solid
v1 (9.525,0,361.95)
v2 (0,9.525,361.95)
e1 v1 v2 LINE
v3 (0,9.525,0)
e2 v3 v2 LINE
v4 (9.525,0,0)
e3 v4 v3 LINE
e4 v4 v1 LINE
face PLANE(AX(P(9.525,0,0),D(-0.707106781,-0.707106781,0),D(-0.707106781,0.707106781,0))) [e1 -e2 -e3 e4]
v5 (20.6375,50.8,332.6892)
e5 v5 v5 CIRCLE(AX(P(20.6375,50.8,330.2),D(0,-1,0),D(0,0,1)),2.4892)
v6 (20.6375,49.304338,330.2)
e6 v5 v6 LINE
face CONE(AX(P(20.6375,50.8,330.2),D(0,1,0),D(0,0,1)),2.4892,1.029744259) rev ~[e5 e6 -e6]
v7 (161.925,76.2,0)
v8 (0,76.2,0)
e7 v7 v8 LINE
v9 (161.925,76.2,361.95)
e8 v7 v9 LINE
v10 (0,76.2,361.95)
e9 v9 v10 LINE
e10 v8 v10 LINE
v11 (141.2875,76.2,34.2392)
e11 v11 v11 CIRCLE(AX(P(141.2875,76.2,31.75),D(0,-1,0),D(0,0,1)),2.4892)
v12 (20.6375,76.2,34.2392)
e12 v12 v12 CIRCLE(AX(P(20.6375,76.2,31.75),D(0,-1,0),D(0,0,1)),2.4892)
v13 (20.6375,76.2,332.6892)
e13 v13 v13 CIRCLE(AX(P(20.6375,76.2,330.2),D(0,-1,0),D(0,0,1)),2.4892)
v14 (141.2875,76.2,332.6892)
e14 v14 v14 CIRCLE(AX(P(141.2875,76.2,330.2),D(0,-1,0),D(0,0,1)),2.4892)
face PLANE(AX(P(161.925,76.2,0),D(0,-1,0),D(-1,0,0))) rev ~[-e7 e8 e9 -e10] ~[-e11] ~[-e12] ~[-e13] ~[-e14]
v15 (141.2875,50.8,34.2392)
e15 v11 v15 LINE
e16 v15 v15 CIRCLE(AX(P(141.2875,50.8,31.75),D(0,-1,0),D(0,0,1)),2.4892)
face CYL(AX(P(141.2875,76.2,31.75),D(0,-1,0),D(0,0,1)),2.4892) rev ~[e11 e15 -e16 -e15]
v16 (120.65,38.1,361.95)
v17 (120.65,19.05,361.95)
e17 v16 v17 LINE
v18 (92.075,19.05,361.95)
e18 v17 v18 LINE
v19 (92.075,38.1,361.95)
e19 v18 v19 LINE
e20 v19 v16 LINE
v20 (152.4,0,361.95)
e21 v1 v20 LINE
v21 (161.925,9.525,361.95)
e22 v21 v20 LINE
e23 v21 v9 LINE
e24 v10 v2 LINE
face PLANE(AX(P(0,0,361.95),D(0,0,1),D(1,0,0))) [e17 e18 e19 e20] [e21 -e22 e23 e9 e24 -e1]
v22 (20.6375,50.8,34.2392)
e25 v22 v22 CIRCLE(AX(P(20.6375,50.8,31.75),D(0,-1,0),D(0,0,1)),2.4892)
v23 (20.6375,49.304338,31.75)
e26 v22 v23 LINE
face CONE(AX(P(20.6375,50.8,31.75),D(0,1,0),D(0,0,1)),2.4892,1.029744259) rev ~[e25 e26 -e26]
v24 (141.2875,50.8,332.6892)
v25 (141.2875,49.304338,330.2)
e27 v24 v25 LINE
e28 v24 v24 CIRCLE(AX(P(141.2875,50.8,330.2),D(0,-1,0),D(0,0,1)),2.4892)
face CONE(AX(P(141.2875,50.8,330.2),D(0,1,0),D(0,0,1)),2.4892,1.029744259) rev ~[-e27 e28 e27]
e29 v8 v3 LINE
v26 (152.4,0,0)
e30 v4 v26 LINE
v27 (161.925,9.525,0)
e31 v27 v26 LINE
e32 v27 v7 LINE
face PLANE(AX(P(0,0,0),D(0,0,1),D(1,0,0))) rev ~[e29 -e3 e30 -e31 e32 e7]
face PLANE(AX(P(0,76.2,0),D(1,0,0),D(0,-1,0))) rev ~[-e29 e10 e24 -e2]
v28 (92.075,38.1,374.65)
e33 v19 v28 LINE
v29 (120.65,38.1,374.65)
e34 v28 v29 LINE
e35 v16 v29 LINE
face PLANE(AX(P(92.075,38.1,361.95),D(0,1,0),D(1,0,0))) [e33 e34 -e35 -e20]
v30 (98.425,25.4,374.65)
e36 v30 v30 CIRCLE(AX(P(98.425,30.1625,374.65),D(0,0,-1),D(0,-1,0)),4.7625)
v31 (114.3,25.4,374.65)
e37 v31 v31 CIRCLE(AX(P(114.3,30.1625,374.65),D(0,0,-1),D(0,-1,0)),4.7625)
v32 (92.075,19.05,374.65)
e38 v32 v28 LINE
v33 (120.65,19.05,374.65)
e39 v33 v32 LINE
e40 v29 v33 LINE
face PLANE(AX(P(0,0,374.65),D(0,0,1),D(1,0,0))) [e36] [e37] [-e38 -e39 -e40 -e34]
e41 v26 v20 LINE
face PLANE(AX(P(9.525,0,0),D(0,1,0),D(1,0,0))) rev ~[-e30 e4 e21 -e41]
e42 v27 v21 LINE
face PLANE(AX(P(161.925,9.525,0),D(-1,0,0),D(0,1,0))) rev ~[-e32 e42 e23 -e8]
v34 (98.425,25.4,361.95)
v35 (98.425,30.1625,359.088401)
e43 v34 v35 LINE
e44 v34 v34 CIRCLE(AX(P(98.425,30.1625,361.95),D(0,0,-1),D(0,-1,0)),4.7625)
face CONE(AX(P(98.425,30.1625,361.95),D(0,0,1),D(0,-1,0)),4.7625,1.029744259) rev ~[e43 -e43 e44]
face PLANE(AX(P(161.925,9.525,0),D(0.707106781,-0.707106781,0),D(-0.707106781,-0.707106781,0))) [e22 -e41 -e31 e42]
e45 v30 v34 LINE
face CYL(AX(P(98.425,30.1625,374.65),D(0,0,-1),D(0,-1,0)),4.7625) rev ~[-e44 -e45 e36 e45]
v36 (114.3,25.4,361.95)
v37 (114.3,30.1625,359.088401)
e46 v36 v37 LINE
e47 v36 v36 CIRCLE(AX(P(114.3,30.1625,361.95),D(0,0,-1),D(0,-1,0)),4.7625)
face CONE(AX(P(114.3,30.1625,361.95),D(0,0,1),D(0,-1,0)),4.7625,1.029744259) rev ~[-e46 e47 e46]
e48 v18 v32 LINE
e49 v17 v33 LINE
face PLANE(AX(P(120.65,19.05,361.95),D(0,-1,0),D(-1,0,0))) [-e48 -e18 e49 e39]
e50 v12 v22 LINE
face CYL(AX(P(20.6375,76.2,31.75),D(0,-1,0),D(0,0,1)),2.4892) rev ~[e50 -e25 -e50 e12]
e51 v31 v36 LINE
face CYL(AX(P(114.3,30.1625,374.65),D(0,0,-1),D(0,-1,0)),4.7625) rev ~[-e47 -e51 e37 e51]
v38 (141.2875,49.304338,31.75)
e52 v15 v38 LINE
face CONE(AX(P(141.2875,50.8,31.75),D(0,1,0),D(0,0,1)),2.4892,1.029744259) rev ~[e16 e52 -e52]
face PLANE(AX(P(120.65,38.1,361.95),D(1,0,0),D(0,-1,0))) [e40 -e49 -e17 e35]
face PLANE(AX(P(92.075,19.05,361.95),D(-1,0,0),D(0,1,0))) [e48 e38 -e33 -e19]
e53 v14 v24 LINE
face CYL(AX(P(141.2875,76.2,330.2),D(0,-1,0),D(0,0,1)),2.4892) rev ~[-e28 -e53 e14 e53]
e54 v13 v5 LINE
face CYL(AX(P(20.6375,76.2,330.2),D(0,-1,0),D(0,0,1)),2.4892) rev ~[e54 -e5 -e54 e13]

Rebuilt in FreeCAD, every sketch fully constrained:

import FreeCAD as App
import Part
import Sketcher
from FreeCAD import Vector
Q = App.Units.Quantity


def add_polygon(sketch, points):
    """Adds a closed chain of lines whose ends are joined by coincident constraints."""
    first, n = sketch.GeometryCount, len(points)
    for a, b in zip(points, points[1:] + points[:1]):
        sketch.addGeometry(Part.LineSegment(App.Vector(*a, 0), App.Vector(*b, 0)), False)
    for i in range(n):
        sketch.addConstraint(Sketcher.Constraint("Coincident", first + i, 2, first + (i + 1) % n, 1))

doc = App.newDocument("Part")
body = doc.addObject("PartDesign::Body", "Body")

# Sketch on XY plane
sketch1 = body.newObject("Sketcher::SketchObject", "Sketch")
sketch1.AttachmentSupport = (doc.getObject("XY_Plane"), [""])
sketch1.MapMode = "FlatFace"
add_polygon(sketch1, [(0, 10), (10, 0), (152, 0), (162, 10), (162, 76), (0, 76)])  # lines 0-5
sketch1.addConstraint([
    Sketcher.Constraint("Horizontal", 1),
    Sketcher.Constraint("Vertical", 3),
    Sketcher.Constraint("Horizontal", 4),
    Sketcher.Constraint("Vertical", 5),
    Sketcher.Constraint("PointOnObject", 0, 2, -1),
    Sketcher.Constraint("PointOnObject", 4, 2, -2),
    Sketcher.Constraint("Perpendicular", 0, 2),
    Sketcher.Constraint("Horizontal", 2, 2, 5, 2),
    Sketcher.Constraint("Equal", 0, 2),
    Sketcher.Constraint("DistanceY", -1, 1, 3, 2, Q("3 in")),
    Sketcher.Constraint("DistanceX", 4, 2, 4, 1, Q("6.375 in")),
    Sketcher.Constraint("DistanceX", -1, 1, 0, 2, Q("0.375 in")),
])
pad1 = body.newObject("PartDesign::Pad", "Pad")
pad1.Profile = sketch1
pad1.Length = Q("14.25 in")

# Sketch on XY plane
sketch2 = body.newObject("Sketcher::SketchObject", "Sketch001")
sketch2.AttachmentSupport = (doc.getObject("XY_Plane"), [""])
sketch2.MapMode = "FlatFace"
sketch2.AttachmentOffset = App.Placement(Vector(0, 0, 14.25 * 25.4), App.Rotation())
add_polygon(sketch2, [(121, 38), (92, 38), (92, 19), (121, 19)])  # lines 0-3
sketch2.addConstraint([
    Sketcher.Constraint("Horizontal", 0),
    Sketcher.Constraint("Vertical", 1),
    Sketcher.Constraint("Horizontal", 2),
    Sketcher.Constraint("Vertical", 3),
    Sketcher.Constraint("DistanceY", 1, 2, 1, 1, Q("0.75 in")),
    Sketcher.Constraint("DistanceX", 0, 2, 0, 1, Q("1.125 in")),
    Sketcher.Constraint("DistanceY", -1, 1, 1, 2, Q("0.75 in")),
    Sketcher.Constraint("DistanceX", -1, 1, 2, 2, Q("4.75 in")),
])
pad2 = body.newObject("PartDesign::Pad", "Pad001")
pad2.Profile = sketch2
pad2.Length = Q("0.5 in")

# Sketch on XY plane
sketch3 = body.newObject("Sketcher::SketchObject", "Sketch002")
sketch3.AttachmentSupport = (doc.getObject("XY_Plane"), [""])
sketch3.MapMode = "FlatFace"
sketch3.AttachmentOffset = App.Placement(Vector(0, 0, 14.75 * 25.4), App.Rotation())
sketch3.addGeometry([
    Part.Circle(Vector(98.4, 30.2, 0), Vector(0, 0, 1), 4.8),
    Part.Circle(Vector(114.3, 30.2, 0), Vector(0, 0, 1), 4.8),
], False)
sketch3.addConstraint([
    Sketcher.Constraint("Equal", 0, 1),
    Sketcher.Constraint("Horizontal", 0, 3, 1, 3),
    Sketcher.Constraint("Diameter", 0, Q("0.375 in")),
    Sketcher.Constraint("DistanceX", -1, 1, 1, 3, Q("4.5 in")),
    Sketcher.Constraint("DistanceX", -1, 1, 0, 3, Q("3.875 in")),
    Sketcher.Constraint("DistanceY", -1, 1, 0, 3, Q("1.1875 in")),
])
doc.recompute()
hole = body.newObject("PartDesign::Hole", "Hole")
hole.Profile = sketch3
hole.ThreadType = "None"
hole.Diameter = Q("0.375 in")
hole.DepthType = "Dimension"
hole.Depth = Q("0.5 in")
hole.DrillPoint = "Angled"
hole.DrillPointAngle = 118

# Sketch on XZ plane
sketch4 = body.newObject("Sketcher::SketchObject", "Sketch003")
sketch4.AttachmentSupport = (doc.getObject("XZ_Plane"), [""])
sketch4.MapMode = "FlatFace"
sketch4.AttachmentOffset = App.Placement(Vector(0, 0, -3 * 25.4), App.Rotation())
sketch4.addGeometry([
    Part.Circle(Vector(20.6, 31.8, 0), Vector(0, 0, 1), 2.5),
    Part.Circle(Vector(141.3, 31.8, 0), Vector(0, 0, 1), 2.5),
    Part.Circle(Vector(141.3, 330.2, 0), Vector(0, 0, 1), 2.5),
    Part.Circle(Vector(20.6, 330.2, 0), Vector(0, 0, 1), 2.5),
], False)
sketch4.addConstraint([
    Sketcher.Constraint("Equal", 0, 1),
    Sketcher.Constraint("Equal", 1, 2),
    Sketcher.Constraint("Equal", 2, 3),
    Sketcher.Constraint("Horizontal", 0, 3, 1, 3),
    Sketcher.Constraint("Horizontal", 2, 3, 3, 3),
    Sketcher.Constraint("Vertical", 1, 3, 2, 3),
    Sketcher.Constraint("Vertical", 0, 3, 3, 3),
    Sketcher.Constraint("Diameter", 0, Q("0.196 in")),
    Sketcher.Constraint("DistanceY", -1, 1, 2, 3, Q("13 in")),
    Sketcher.Constraint("DistanceY", -1, 1, 0, 3, Q("1.25 in")),
    Sketcher.Constraint("DistanceX", 0, 3, 1, 3, Q("4.75 in")),
    Sketcher.Constraint("DistanceX", -1, 1, 0, 3, Q("0.8125 in")),
])
doc.recompute()
hole2 = body.newObject("PartDesign::Hole", "Hole001")
hole2.Profile = sketch4
hole2.ThreadType = "None"
hole2.Diameter = Q("0.196 in")
hole2.DepthType = "Dimension"
hole2.Depth = Q("1 in")
hole2.DrillPoint = "Angled"
hole2.DrillPointAngle = 118
hole2.Reversed = True

doc.recompute()
